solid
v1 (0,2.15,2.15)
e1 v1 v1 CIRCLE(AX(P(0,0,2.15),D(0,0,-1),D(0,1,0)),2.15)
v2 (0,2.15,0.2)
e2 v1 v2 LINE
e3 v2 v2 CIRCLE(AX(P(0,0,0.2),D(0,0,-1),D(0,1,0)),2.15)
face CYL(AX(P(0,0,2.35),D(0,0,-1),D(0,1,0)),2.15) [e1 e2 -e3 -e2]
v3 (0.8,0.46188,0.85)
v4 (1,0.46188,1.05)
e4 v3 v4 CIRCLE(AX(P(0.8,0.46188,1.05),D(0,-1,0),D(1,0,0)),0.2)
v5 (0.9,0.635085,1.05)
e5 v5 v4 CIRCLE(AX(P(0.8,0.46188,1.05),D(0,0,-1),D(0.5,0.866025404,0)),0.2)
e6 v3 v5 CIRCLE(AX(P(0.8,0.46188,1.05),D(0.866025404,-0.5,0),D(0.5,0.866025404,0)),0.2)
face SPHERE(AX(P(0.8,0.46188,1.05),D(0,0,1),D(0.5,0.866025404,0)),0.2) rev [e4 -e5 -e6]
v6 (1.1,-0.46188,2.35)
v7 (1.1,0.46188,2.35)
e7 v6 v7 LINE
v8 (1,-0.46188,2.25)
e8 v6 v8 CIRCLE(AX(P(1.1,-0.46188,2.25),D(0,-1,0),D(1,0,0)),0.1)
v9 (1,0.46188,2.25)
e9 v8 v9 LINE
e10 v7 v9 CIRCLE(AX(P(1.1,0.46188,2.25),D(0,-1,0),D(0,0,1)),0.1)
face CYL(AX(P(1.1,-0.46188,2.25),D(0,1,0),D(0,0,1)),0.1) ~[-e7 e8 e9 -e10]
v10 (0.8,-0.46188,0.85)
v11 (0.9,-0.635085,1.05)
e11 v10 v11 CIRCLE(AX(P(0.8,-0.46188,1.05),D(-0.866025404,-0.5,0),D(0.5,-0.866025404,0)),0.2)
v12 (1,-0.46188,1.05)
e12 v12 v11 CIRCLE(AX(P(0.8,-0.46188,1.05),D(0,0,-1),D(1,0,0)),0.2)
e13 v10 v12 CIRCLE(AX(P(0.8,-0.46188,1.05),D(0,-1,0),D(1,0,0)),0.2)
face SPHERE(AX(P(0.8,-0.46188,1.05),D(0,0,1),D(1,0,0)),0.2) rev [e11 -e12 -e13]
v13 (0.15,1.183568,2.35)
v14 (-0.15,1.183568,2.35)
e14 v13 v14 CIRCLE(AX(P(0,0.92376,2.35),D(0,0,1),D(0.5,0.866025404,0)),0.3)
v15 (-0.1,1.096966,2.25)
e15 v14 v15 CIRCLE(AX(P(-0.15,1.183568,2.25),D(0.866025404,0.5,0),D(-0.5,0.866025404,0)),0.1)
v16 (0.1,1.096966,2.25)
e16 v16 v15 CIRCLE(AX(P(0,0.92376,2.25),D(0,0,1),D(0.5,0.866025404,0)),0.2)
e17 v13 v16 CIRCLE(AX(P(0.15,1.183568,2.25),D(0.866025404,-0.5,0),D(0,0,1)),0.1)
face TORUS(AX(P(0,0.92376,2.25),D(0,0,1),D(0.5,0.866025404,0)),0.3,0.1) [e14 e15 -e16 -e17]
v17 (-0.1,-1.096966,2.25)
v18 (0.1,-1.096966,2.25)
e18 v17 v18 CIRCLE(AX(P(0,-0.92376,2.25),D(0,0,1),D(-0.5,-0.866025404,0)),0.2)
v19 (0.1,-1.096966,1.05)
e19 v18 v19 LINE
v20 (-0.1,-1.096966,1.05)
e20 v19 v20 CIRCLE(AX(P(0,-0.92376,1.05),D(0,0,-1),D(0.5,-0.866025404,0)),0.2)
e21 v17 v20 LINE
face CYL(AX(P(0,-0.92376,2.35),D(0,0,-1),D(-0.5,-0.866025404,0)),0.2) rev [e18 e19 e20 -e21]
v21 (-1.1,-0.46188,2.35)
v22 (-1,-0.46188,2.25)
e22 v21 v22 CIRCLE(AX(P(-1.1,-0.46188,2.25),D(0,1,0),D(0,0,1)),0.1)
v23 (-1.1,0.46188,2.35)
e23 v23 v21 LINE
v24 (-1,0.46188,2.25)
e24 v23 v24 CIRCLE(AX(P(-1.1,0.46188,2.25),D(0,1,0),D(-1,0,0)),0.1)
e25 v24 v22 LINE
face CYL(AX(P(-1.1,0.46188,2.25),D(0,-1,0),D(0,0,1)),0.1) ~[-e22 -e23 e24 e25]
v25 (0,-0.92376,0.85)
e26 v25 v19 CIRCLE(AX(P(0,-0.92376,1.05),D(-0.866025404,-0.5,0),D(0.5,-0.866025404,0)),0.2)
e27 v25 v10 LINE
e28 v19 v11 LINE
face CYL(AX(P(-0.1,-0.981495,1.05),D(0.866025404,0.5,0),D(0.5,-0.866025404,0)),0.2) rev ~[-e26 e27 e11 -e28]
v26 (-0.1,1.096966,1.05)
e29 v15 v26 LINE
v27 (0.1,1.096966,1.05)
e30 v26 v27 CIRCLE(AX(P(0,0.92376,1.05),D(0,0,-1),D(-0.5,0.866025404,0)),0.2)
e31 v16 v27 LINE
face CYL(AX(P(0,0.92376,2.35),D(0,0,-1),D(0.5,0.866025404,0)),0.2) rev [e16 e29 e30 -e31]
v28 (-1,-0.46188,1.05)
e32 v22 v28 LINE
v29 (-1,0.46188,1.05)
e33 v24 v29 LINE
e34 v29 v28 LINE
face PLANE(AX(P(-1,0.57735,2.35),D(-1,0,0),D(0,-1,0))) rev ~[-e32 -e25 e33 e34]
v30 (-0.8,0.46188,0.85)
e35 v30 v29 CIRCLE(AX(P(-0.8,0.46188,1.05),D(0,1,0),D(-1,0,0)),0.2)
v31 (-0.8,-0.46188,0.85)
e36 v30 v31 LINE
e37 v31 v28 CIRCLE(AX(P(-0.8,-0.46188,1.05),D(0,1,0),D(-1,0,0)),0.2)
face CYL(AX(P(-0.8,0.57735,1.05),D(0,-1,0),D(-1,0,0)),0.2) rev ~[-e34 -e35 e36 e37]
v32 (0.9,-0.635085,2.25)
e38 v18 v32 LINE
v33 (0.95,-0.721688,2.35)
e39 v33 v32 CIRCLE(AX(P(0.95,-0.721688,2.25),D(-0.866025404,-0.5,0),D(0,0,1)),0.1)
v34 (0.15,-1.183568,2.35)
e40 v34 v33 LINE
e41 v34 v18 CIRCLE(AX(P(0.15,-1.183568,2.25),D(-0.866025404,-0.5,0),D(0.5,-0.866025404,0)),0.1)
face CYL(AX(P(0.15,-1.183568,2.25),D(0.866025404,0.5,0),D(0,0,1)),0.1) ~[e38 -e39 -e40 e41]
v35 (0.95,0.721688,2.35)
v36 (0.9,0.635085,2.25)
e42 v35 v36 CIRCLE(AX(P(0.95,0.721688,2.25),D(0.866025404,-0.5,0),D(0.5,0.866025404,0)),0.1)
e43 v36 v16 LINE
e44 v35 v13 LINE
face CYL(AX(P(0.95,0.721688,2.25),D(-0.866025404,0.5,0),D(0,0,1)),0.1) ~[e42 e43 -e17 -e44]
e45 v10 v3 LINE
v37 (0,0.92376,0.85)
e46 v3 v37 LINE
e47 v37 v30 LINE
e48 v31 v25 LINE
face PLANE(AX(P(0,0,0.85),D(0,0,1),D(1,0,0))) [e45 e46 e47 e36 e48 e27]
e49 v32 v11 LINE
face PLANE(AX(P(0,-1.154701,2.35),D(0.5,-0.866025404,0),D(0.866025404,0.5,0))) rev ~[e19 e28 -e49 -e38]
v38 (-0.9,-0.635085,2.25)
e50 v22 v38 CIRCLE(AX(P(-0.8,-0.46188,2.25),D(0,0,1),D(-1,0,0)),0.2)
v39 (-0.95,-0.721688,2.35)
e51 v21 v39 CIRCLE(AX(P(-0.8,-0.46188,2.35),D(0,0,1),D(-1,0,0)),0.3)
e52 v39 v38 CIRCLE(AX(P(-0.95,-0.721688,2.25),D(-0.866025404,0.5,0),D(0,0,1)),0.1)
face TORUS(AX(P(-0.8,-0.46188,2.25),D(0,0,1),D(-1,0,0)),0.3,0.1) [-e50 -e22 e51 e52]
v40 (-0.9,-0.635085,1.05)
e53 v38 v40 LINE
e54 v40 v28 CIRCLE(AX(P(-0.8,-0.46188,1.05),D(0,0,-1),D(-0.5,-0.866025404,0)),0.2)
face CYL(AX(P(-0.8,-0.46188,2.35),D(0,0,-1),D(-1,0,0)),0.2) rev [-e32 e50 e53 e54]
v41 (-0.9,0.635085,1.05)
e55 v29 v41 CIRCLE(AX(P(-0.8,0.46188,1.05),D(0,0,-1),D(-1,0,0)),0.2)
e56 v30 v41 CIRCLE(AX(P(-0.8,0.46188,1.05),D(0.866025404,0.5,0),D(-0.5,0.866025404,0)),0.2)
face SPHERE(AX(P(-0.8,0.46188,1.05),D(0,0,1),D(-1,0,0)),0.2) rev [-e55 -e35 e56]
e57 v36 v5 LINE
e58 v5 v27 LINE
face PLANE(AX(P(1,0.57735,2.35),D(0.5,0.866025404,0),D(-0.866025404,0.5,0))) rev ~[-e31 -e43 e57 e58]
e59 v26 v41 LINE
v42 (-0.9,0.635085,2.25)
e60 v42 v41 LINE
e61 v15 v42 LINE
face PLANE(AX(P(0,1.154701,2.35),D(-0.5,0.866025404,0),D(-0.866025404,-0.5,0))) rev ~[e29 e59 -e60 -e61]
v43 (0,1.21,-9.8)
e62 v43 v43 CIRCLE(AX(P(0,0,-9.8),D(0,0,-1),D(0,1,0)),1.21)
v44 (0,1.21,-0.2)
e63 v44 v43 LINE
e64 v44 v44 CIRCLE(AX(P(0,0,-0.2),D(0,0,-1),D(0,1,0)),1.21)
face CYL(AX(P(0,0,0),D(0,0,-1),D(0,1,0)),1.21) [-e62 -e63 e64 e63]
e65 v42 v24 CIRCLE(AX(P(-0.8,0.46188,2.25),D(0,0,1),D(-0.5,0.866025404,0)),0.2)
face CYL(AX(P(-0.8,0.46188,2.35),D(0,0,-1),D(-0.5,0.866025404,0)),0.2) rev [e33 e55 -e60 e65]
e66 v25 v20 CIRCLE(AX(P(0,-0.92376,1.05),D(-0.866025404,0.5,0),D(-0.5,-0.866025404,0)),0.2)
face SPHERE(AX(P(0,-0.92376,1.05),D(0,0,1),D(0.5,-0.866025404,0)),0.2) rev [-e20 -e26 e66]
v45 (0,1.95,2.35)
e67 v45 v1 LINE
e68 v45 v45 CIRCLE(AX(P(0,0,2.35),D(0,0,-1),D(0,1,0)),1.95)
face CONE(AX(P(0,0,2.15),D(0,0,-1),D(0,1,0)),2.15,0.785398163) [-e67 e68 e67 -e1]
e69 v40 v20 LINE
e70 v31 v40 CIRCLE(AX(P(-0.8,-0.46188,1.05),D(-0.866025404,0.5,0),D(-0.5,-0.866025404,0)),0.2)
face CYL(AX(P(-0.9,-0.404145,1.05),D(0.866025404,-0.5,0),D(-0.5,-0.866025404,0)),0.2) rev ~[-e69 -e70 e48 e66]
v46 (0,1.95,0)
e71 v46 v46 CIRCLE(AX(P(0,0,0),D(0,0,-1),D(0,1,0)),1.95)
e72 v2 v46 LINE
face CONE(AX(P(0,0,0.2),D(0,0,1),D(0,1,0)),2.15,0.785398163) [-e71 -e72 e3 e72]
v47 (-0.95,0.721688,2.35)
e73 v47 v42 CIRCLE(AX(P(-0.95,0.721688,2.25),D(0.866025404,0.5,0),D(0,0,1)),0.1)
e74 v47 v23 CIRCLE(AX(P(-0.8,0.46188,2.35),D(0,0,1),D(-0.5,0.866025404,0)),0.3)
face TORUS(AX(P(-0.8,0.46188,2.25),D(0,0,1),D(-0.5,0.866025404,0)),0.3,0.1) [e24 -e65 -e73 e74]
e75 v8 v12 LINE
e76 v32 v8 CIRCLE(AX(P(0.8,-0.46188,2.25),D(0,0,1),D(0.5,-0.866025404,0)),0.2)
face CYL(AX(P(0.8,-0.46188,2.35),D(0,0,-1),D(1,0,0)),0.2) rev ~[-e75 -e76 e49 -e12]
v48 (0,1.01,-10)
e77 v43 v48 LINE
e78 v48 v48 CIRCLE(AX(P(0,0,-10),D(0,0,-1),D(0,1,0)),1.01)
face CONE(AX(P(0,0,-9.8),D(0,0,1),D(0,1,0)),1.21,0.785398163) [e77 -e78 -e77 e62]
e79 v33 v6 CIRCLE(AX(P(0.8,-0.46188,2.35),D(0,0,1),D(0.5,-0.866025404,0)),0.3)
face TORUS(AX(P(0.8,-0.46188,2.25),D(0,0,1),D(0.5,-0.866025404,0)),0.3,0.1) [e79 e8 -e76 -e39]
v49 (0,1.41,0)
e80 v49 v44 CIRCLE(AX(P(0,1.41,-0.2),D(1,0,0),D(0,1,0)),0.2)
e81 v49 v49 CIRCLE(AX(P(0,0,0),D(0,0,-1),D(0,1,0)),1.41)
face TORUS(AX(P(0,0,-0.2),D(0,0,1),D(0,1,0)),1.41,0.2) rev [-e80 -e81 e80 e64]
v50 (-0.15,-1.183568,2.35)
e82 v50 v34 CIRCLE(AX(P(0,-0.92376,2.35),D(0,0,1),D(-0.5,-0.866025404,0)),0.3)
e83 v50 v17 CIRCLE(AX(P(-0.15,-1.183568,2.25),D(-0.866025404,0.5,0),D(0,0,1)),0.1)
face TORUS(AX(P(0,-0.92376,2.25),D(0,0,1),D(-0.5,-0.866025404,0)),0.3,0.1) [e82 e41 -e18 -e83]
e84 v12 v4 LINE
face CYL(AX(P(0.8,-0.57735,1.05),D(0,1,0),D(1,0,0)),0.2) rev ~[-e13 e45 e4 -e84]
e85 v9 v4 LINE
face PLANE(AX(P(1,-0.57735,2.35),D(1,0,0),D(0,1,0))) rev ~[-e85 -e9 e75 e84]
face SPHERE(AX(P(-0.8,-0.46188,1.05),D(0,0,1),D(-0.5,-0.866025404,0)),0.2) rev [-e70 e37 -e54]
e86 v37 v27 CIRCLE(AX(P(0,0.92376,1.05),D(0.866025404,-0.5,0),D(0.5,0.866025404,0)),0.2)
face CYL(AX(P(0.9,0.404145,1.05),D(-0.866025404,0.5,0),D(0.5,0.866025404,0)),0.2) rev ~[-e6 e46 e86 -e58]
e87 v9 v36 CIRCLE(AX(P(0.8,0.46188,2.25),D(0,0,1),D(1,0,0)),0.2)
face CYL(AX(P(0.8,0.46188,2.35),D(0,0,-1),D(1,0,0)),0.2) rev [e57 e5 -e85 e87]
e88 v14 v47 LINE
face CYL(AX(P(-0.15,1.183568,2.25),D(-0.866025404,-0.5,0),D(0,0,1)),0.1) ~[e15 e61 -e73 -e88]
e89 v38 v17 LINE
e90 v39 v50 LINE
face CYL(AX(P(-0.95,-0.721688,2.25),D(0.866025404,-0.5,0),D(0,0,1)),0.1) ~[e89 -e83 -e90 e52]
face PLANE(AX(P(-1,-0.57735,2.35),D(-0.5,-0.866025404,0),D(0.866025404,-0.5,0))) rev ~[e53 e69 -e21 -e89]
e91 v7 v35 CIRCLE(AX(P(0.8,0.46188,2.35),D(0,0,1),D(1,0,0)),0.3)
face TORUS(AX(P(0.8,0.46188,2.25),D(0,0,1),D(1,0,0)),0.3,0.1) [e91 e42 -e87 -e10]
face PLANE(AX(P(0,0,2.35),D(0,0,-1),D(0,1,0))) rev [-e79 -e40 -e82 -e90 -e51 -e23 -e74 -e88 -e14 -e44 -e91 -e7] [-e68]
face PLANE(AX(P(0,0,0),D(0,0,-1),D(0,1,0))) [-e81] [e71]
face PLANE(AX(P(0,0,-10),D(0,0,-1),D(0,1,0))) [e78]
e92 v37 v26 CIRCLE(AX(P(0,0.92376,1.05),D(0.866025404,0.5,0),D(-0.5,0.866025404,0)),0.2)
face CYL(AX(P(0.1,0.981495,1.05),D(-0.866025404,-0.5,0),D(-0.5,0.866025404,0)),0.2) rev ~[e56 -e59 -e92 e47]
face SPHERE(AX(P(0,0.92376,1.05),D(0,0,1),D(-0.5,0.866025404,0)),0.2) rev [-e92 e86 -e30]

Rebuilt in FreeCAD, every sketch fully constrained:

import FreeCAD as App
import Part
import Sketcher
from FreeCAD import Vector
Q = App.Units.Quantity


def edges_at(feature, points):
    """Names of the edges that pass closest to the given points."""
    edges = feature.Shape.Edges
    near = lambda p: min(range(len(edges)), key=lambda i: edges[i].distToShape(Part.Vertex(*p))[0])
    return sorted({f"Edge{near(p) + 1}" for p in points})

doc = App.newDocument("Part")
body = doc.addObject("PartDesign::Body", "Body")

sketch1 = body.newObject("Sketcher::SketchObject", "Sketch")
sketch1.AttachmentSupport = (doc.getObject("YZ_Plane"), [""])
sketch1.MapMode = "FlatFace"
sketch1.addGeometry([
    Part.LineSegment(Vector(2.15, 2.35, 0), Vector(0, 2.35, 0)),
    Part.LineSegment(Vector(0, 2.35, 0), Vector(0, -10, 0)),
    Part.LineSegment(Vector(0, -10, 0), Vector(1.21, -10, 0)),
    Part.LineSegment(Vector(1.21, -10, 0), Vector(1.21, 0, 0)),
    Part.LineSegment(Vector(1.21, 0, 0), Vector(2.15, 0, 0)),
    Part.LineSegment(Vector(2.15, 0, 0), Vector(2.15, 2.35, 0)),
], False)
sketch1.addConstraint([
    Sketcher.Constraint("Coincident", 0, 2, 1, 1),
    Sketcher.Constraint("Coincident", 1, 2, 2, 1),
    Sketcher.Constraint("Coincident", 2, 2, 3, 1),
    Sketcher.Constraint("Coincident", 3, 2, 4, 1),
    Sketcher.Constraint("Coincident", 4, 2, 5, 1),
    Sketcher.Constraint("Coincident", 5, 2, 0, 1),
    Sketcher.Constraint("Horizontal", 0),
    Sketcher.Constraint("Vertical", 1),
    Sketcher.Constraint("Horizontal", 2),
    Sketcher.Constraint("Vertical", 3),
    Sketcher.Constraint("Horizontal", 4),
    Sketcher.Constraint("Vertical", 5),
    Sketcher.Constraint("PointOnObject", 0, 2, -2),
    Sketcher.Constraint("PointOnObject", 3, 2, -1),
    Sketcher.Constraint("DistanceY", 3, 1, 3, 2, Q("10 mm")),
    Sketcher.Constraint("DistanceX", 0, 2, 0, 1, Q("2.15 mm")),
    Sketcher.Constraint("DistanceX", 2, 1, 2, 2, Q("1.21 mm")),
    Sketcher.Constraint("DistanceY", 1, 2, 1, 1, Q("12.35 mm")),
])
revolution = body.newObject("PartDesign::Revolution", "Revolution")
revolution.Profile = sketch1
revolution.ReferenceAxis = (sketch1, ["V_Axis"])
revolution.Angle = 360

sketch2 = body.newObject("Sketcher::SketchObject", "Sketch001")
sketch2.AttachmentSupport = (doc.getObject("XY_Plane"), [""])
sketch2.MapMode = "FlatFace"
sketch2.AttachmentOffset = App.Placement(Vector(0, 0, 2.35), App.Rotation())
sketch2.addGeometry([
    Part.LineSegment(Vector(1, -0.57735, 0), Vector(1, 0.57735, 0)),
    Part.LineSegment(Vector(1, 0.57735, 0), Vector(0, 1.154701, 0)),
    Part.LineSegment(Vector(0, 1.154701, 0), Vector(-1, 0.57735, 0)),
    Part.LineSegment(Vector(-1, 0.57735, 0), Vector(-1, -0.57735, 0)),
    Part.LineSegment(Vector(-1, -0.57735, 0), Vector(0, -1.154701, 0)),
    Part.LineSegment(Vector(0, -1.154701, 0), Vector(1, -0.57735, 0)),
], False)
sketch2.addConstraint([
    Sketcher.Constraint("Coincident", 0, 2, 1, 1),
    Sketcher.Constraint("Coincident", 1, 2, 2, 1),
    Sketcher.Constraint("Coincident", 2, 2, 3, 1),
    Sketcher.Constraint("Coincident", 3, 2, 4, 1),
    Sketcher.Constraint("Coincident", 4, 2, 5, 1),
    Sketcher.Constraint("Coincident", 5, 2, 0, 1),
    Sketcher.Constraint("Vertical", 0),
    Sketcher.Constraint("Vertical", 3),
    Sketcher.Constraint("Symmetric", 0, 2, 3, 2, -1, 1),
    Sketcher.Constraint("Symmetric", 1, 2, 4, 2, -1, 1),
    Sketcher.Constraint("PointOnObject", 1, 2, -2),
    Sketcher.Constraint("Parallel", 2, 5),
    Sketcher.Constraint("Horizontal", 0, 2, 2, 2),
    Sketcher.Constraint("Angle", 1, Q("150 deg")),
    Sketcher.Constraint("DistanceX", -1, 1, 0, 2, Q("1 mm")),
    Sketcher.Constraint("DistanceY", 0, 1, 0, 2, Q("1.154701 mm")),
])
pocket1 = body.newObject("PartDesign::Pocket", "Pocket")
pocket1.Profile = sketch2
pocket1.Length = 1.5
doc.recompute()

chamfer = body.newObject("PartDesign::Chamfer", "Chamfer")
chamfer.Base = (pocket1, edges_at(pocket1, [(0, -1.21, -10), (0, -2.15, 0), (0, -2.15, 2.35)]))
chamfer.Size = 0.2
doc.recompute()

fillet = body.newObject("PartDesign::Fillet", "Fillet")
fillet.Base = (chamfer, edges_at(chamfer, [
    (0.5, -0.866, 0.85),
    (1, -0.577, 1.6),
    (-0.5, -0.866, 0.85),
    (0, -1.155, 1.6),
    (-1, 0, 0.85),
    (-1, -0.577, 1.6),
    (-0.5, 0.866, 0.85),
    (-1, 0.577, 1.6),
    (0.5, 0.866, 0.85),
    (0, 1.155, 1.6),
    (1, 0, 0.85),
    (1, 0.577, 1.6),
    (0, -1.21, 0),
]))
fillet.Radius = 0.2
doc.recompute()

fillet2 = body.newObject("PartDesign::Fillet", "Fillet001")
fillet2.Base = (fillet, edges_at(fillet, [
    (-0.5, -0.866, 2.35),
    (-1, 0, 2.35),
    (-0.5, 0.866, 2.35),
    (0.5, 0.866, 2.35),
    (1, 0, 2.35),
    (0.5, -0.866, 2.35),
    (-0.973, -0.562, 2.35),
    (0, -1.124, 2.35),
    (0.973, -0.562, 2.35),
    (0.973, 0.562, 2.35),
    (0, 1.124, 2.35),
    (-0.973, 0.562, 2.35),
]))
fillet2.Radius = 0.1

doc.recompute()
